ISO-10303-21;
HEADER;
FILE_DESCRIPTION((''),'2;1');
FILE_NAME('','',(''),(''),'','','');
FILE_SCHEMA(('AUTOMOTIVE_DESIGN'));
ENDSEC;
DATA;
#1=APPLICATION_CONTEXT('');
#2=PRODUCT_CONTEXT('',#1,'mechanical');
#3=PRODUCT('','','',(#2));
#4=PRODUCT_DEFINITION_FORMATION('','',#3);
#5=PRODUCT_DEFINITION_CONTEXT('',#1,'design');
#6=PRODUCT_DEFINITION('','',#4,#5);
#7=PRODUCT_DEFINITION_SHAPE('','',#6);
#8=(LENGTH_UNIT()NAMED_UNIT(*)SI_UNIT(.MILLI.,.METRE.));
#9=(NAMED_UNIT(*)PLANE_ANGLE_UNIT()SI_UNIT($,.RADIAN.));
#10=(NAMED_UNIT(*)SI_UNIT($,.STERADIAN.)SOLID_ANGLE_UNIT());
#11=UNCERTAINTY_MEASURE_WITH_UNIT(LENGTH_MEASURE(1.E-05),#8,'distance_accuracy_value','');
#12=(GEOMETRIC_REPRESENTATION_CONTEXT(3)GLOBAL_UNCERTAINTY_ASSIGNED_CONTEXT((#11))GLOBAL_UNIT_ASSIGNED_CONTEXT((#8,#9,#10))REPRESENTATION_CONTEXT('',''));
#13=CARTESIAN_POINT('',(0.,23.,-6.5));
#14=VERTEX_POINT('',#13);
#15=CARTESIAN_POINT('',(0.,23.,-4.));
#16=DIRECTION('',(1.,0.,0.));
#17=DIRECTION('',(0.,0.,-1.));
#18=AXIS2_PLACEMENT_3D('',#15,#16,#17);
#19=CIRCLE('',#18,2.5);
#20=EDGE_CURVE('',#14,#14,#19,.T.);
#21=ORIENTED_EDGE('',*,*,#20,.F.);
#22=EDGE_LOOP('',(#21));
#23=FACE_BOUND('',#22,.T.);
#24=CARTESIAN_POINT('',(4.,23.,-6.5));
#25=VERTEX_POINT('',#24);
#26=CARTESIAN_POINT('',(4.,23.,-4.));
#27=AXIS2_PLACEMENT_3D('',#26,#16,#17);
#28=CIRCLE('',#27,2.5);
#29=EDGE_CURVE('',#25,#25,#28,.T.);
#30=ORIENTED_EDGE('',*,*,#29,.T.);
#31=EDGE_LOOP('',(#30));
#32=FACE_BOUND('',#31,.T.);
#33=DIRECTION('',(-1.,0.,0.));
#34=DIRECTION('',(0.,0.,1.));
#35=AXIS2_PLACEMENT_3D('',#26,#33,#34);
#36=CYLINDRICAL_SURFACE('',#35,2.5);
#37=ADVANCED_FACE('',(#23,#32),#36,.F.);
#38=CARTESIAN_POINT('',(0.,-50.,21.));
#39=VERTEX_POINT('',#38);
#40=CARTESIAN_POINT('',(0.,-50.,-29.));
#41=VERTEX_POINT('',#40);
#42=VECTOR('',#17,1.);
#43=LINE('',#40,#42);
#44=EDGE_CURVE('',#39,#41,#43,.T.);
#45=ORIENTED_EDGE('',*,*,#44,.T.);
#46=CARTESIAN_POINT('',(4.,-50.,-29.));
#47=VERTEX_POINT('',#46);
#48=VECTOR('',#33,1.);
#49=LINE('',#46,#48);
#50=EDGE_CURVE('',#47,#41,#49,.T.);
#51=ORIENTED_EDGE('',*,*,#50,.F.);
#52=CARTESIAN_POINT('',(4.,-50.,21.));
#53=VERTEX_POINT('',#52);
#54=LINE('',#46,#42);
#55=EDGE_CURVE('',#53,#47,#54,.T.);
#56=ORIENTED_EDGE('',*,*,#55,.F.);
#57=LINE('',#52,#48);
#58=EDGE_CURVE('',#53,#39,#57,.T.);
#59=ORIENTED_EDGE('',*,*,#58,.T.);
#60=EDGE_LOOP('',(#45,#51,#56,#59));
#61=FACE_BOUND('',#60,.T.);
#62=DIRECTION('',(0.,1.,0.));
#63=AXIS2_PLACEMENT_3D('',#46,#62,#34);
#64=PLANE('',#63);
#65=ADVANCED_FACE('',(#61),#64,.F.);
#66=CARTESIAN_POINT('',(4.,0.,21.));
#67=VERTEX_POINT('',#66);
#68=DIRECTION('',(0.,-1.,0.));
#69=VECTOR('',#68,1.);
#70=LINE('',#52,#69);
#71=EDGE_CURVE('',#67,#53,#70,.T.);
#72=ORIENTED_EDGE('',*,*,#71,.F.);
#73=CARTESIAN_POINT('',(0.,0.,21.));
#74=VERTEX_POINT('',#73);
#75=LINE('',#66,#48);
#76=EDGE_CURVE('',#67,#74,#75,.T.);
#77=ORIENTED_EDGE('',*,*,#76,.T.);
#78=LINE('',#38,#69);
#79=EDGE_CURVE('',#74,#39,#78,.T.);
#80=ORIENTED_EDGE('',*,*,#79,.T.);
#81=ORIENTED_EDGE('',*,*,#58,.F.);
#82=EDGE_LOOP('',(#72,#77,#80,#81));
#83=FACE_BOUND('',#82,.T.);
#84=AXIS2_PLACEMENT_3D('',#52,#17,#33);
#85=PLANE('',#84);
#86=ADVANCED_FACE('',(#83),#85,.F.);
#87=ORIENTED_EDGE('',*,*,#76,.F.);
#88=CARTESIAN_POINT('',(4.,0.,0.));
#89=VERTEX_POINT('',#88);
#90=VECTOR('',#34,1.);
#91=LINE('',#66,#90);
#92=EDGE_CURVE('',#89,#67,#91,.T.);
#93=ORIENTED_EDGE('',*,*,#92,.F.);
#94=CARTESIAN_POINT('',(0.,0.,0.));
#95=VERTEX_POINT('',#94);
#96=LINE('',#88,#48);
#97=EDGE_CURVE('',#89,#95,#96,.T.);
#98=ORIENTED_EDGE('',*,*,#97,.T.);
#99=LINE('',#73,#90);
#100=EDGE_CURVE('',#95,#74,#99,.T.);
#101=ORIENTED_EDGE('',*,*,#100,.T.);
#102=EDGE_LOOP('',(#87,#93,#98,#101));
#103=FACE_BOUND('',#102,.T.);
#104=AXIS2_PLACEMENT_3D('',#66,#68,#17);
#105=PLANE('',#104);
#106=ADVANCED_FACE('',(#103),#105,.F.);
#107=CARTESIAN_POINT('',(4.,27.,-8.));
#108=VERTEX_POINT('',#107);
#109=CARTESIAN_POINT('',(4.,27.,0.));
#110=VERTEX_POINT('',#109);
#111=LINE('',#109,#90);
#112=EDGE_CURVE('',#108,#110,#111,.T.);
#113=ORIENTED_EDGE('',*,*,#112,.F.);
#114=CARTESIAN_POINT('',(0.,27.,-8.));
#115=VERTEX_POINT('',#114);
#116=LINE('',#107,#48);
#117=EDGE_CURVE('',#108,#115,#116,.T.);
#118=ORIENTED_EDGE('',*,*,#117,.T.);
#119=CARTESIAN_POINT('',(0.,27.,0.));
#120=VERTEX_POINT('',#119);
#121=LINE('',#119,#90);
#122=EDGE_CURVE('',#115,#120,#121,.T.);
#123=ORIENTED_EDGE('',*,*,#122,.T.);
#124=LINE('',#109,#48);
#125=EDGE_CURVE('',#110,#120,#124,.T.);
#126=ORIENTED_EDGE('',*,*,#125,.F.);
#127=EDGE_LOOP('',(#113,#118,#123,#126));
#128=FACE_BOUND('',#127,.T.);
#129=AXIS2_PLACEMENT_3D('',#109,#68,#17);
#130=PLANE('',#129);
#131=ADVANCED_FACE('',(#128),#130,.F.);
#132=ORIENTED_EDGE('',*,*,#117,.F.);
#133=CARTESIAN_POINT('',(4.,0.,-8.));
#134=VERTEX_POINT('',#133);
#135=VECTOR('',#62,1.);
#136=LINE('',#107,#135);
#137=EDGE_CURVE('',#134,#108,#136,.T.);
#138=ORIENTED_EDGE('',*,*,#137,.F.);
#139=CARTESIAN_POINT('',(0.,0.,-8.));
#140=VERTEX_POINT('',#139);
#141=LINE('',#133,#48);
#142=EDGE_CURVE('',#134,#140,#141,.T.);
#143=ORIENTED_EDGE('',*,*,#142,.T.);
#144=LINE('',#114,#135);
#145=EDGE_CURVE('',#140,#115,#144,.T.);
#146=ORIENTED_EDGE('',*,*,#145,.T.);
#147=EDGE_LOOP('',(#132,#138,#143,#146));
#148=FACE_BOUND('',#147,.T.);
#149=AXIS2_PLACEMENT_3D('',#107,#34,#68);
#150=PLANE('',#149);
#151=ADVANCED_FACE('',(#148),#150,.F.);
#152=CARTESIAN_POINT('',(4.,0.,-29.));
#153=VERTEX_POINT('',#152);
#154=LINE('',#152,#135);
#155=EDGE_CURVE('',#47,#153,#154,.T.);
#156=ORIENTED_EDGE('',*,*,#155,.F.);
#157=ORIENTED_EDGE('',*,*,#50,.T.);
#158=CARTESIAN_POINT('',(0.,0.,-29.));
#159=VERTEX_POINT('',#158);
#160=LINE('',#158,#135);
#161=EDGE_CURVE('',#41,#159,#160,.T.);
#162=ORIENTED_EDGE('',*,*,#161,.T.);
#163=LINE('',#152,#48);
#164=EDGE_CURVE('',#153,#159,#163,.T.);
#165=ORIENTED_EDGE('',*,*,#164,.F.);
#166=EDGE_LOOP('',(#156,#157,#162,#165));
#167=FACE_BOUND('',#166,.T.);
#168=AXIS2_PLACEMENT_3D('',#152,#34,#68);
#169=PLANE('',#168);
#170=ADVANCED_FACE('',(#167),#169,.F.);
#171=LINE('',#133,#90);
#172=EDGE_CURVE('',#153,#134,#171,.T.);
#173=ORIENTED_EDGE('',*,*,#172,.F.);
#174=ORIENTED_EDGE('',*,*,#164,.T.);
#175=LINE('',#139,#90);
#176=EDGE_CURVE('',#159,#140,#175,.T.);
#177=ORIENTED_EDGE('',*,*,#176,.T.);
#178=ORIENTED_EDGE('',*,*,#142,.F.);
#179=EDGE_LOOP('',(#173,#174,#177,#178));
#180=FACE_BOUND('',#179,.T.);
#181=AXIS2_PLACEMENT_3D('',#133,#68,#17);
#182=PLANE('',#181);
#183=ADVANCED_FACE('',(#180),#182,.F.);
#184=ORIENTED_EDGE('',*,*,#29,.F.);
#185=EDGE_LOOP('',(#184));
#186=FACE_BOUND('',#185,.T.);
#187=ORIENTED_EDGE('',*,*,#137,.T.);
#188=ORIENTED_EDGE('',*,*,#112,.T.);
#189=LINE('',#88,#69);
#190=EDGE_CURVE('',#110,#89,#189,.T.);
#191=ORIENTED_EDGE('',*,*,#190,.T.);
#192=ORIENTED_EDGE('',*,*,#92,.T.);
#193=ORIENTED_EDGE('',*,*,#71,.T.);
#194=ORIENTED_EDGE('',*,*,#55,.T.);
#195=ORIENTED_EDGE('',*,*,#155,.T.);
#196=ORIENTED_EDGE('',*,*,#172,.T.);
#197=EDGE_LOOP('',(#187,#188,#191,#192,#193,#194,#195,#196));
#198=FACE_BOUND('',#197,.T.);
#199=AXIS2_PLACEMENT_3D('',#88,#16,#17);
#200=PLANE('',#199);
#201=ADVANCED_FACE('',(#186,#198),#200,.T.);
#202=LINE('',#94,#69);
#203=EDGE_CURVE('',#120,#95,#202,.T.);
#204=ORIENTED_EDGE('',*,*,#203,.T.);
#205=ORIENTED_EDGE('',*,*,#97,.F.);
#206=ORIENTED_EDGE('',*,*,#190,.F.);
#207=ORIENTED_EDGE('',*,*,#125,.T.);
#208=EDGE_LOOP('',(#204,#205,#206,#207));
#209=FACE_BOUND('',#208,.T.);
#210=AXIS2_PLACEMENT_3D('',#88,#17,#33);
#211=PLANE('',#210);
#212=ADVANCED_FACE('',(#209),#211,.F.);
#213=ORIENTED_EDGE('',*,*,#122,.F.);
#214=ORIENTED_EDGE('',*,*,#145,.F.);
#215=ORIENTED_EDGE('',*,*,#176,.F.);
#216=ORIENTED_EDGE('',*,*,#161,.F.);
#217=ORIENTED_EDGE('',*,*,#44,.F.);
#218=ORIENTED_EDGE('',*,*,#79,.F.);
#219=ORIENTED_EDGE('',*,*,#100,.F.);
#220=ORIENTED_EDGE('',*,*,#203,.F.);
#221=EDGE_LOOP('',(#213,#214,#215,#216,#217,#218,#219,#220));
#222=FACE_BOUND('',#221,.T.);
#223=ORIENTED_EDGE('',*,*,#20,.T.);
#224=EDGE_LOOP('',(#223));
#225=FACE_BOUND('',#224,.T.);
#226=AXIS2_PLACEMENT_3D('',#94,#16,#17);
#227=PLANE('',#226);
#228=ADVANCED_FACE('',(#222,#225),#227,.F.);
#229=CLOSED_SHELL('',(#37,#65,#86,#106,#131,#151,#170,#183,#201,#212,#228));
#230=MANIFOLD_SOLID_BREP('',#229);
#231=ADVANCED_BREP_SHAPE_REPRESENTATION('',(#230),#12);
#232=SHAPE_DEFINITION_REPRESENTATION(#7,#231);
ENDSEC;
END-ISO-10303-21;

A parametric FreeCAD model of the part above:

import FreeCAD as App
import Part
import Sketcher
from FreeCAD import Vector
Q = App.Units.Quantity


def add_polygon(sketch, points):
    """Adds a closed chain of lines whose ends are joined by coincident constraints."""
    first, n = sketch.GeometryCount, len(points)
    for a, b in zip(points, points[1:] + points[:1]):
        sketch.addGeometry(Part.LineSegment(App.Vector(*a, 0), App.Vector(*b, 0)), False)
    for i in range(n):
        sketch.addConstraint(Sketcher.Constraint("Coincident", first + i, 2, first + (i + 1) % n, 1))

doc = App.newDocument("Part")
body = doc.addObject("PartDesign::Body", "Body")

# Sketch on YZ plane
sketch1 = body.newObject("Sketcher::SketchObject", "Sketch")
sketch1.AttachmentSupport = (doc.getObject("YZ_Plane"), [""])
sketch1.MapMode = "FlatFace"
add_polygon(sketch1, [(27, 0), (0, 0), (0, 21), (-50, 21), (-50, -29), (0, -29), (0, -8), (27, -8)])  # lines 0-7
sketch1.addGeometry(Part.Circle(Vector(23, -4, 0), Vector(0, 0, 1), 2.5), False)  # 8
sketch1.addConstraint(Sketcher.Constraint("Horizontal", 0))
sketch1.addConstraint(Sketcher.Constraint("Vertical", 1))
sketch1.addConstraint(Sketcher.Constraint("Horizontal", 2))
sketch1.addConstraint(Sketcher.Constraint("Vertical", 3))
sketch1.addConstraint(Sketcher.Constraint("Horizontal", 4))
sketch1.addConstraint(Sketcher.Constraint("Vertical", 5))
sketch1.addConstraint(Sketcher.Constraint("Horizontal", 6))
sketch1.addConstraint(Sketcher.Constraint("Vertical", 7))
sketch1.addConstraint(Sketcher.Constraint("Coincident", 0, 2, -1, 1))
sketch1.addConstraint(Sketcher.Constraint("PointOnObject", 4, 2, -2))
sketch1.addConstraint(Sketcher.Constraint("Equal", 4, 3))
sketch1.addConstraint(Sketcher.Constraint("Equal", 1, 5))
sketch1.addConstraint(Sketcher.Constraint("Diameter", 8, Q("5 mm")))
sketch1.addConstraint(Sketcher.Constraint("DistanceX", 0, 2, 0, 1, Q("27 mm")))
sketch1.addConstraint(Sketcher.Constraint("DistanceX", 2, 2, 2, 1, Q("50 mm")))
sketch1.addConstraint(Sketcher.Constraint("DistanceY", 1, 1, 1, 2, Q("21 mm")))
sketch1.addConstraint(Sketcher.Constraint("DistanceX", -1, 1, 8, 3, Q("23 mm")))
sketch1.addConstraint(Sketcher.Constraint("DistanceY", 8, 3, -1, 1, Q("4 mm")))
pad1 = body.newObject("PartDesign::Pad", "Pad")
pad1.Profile = sketch1
pad1.Length = 4

doc.recompute()
